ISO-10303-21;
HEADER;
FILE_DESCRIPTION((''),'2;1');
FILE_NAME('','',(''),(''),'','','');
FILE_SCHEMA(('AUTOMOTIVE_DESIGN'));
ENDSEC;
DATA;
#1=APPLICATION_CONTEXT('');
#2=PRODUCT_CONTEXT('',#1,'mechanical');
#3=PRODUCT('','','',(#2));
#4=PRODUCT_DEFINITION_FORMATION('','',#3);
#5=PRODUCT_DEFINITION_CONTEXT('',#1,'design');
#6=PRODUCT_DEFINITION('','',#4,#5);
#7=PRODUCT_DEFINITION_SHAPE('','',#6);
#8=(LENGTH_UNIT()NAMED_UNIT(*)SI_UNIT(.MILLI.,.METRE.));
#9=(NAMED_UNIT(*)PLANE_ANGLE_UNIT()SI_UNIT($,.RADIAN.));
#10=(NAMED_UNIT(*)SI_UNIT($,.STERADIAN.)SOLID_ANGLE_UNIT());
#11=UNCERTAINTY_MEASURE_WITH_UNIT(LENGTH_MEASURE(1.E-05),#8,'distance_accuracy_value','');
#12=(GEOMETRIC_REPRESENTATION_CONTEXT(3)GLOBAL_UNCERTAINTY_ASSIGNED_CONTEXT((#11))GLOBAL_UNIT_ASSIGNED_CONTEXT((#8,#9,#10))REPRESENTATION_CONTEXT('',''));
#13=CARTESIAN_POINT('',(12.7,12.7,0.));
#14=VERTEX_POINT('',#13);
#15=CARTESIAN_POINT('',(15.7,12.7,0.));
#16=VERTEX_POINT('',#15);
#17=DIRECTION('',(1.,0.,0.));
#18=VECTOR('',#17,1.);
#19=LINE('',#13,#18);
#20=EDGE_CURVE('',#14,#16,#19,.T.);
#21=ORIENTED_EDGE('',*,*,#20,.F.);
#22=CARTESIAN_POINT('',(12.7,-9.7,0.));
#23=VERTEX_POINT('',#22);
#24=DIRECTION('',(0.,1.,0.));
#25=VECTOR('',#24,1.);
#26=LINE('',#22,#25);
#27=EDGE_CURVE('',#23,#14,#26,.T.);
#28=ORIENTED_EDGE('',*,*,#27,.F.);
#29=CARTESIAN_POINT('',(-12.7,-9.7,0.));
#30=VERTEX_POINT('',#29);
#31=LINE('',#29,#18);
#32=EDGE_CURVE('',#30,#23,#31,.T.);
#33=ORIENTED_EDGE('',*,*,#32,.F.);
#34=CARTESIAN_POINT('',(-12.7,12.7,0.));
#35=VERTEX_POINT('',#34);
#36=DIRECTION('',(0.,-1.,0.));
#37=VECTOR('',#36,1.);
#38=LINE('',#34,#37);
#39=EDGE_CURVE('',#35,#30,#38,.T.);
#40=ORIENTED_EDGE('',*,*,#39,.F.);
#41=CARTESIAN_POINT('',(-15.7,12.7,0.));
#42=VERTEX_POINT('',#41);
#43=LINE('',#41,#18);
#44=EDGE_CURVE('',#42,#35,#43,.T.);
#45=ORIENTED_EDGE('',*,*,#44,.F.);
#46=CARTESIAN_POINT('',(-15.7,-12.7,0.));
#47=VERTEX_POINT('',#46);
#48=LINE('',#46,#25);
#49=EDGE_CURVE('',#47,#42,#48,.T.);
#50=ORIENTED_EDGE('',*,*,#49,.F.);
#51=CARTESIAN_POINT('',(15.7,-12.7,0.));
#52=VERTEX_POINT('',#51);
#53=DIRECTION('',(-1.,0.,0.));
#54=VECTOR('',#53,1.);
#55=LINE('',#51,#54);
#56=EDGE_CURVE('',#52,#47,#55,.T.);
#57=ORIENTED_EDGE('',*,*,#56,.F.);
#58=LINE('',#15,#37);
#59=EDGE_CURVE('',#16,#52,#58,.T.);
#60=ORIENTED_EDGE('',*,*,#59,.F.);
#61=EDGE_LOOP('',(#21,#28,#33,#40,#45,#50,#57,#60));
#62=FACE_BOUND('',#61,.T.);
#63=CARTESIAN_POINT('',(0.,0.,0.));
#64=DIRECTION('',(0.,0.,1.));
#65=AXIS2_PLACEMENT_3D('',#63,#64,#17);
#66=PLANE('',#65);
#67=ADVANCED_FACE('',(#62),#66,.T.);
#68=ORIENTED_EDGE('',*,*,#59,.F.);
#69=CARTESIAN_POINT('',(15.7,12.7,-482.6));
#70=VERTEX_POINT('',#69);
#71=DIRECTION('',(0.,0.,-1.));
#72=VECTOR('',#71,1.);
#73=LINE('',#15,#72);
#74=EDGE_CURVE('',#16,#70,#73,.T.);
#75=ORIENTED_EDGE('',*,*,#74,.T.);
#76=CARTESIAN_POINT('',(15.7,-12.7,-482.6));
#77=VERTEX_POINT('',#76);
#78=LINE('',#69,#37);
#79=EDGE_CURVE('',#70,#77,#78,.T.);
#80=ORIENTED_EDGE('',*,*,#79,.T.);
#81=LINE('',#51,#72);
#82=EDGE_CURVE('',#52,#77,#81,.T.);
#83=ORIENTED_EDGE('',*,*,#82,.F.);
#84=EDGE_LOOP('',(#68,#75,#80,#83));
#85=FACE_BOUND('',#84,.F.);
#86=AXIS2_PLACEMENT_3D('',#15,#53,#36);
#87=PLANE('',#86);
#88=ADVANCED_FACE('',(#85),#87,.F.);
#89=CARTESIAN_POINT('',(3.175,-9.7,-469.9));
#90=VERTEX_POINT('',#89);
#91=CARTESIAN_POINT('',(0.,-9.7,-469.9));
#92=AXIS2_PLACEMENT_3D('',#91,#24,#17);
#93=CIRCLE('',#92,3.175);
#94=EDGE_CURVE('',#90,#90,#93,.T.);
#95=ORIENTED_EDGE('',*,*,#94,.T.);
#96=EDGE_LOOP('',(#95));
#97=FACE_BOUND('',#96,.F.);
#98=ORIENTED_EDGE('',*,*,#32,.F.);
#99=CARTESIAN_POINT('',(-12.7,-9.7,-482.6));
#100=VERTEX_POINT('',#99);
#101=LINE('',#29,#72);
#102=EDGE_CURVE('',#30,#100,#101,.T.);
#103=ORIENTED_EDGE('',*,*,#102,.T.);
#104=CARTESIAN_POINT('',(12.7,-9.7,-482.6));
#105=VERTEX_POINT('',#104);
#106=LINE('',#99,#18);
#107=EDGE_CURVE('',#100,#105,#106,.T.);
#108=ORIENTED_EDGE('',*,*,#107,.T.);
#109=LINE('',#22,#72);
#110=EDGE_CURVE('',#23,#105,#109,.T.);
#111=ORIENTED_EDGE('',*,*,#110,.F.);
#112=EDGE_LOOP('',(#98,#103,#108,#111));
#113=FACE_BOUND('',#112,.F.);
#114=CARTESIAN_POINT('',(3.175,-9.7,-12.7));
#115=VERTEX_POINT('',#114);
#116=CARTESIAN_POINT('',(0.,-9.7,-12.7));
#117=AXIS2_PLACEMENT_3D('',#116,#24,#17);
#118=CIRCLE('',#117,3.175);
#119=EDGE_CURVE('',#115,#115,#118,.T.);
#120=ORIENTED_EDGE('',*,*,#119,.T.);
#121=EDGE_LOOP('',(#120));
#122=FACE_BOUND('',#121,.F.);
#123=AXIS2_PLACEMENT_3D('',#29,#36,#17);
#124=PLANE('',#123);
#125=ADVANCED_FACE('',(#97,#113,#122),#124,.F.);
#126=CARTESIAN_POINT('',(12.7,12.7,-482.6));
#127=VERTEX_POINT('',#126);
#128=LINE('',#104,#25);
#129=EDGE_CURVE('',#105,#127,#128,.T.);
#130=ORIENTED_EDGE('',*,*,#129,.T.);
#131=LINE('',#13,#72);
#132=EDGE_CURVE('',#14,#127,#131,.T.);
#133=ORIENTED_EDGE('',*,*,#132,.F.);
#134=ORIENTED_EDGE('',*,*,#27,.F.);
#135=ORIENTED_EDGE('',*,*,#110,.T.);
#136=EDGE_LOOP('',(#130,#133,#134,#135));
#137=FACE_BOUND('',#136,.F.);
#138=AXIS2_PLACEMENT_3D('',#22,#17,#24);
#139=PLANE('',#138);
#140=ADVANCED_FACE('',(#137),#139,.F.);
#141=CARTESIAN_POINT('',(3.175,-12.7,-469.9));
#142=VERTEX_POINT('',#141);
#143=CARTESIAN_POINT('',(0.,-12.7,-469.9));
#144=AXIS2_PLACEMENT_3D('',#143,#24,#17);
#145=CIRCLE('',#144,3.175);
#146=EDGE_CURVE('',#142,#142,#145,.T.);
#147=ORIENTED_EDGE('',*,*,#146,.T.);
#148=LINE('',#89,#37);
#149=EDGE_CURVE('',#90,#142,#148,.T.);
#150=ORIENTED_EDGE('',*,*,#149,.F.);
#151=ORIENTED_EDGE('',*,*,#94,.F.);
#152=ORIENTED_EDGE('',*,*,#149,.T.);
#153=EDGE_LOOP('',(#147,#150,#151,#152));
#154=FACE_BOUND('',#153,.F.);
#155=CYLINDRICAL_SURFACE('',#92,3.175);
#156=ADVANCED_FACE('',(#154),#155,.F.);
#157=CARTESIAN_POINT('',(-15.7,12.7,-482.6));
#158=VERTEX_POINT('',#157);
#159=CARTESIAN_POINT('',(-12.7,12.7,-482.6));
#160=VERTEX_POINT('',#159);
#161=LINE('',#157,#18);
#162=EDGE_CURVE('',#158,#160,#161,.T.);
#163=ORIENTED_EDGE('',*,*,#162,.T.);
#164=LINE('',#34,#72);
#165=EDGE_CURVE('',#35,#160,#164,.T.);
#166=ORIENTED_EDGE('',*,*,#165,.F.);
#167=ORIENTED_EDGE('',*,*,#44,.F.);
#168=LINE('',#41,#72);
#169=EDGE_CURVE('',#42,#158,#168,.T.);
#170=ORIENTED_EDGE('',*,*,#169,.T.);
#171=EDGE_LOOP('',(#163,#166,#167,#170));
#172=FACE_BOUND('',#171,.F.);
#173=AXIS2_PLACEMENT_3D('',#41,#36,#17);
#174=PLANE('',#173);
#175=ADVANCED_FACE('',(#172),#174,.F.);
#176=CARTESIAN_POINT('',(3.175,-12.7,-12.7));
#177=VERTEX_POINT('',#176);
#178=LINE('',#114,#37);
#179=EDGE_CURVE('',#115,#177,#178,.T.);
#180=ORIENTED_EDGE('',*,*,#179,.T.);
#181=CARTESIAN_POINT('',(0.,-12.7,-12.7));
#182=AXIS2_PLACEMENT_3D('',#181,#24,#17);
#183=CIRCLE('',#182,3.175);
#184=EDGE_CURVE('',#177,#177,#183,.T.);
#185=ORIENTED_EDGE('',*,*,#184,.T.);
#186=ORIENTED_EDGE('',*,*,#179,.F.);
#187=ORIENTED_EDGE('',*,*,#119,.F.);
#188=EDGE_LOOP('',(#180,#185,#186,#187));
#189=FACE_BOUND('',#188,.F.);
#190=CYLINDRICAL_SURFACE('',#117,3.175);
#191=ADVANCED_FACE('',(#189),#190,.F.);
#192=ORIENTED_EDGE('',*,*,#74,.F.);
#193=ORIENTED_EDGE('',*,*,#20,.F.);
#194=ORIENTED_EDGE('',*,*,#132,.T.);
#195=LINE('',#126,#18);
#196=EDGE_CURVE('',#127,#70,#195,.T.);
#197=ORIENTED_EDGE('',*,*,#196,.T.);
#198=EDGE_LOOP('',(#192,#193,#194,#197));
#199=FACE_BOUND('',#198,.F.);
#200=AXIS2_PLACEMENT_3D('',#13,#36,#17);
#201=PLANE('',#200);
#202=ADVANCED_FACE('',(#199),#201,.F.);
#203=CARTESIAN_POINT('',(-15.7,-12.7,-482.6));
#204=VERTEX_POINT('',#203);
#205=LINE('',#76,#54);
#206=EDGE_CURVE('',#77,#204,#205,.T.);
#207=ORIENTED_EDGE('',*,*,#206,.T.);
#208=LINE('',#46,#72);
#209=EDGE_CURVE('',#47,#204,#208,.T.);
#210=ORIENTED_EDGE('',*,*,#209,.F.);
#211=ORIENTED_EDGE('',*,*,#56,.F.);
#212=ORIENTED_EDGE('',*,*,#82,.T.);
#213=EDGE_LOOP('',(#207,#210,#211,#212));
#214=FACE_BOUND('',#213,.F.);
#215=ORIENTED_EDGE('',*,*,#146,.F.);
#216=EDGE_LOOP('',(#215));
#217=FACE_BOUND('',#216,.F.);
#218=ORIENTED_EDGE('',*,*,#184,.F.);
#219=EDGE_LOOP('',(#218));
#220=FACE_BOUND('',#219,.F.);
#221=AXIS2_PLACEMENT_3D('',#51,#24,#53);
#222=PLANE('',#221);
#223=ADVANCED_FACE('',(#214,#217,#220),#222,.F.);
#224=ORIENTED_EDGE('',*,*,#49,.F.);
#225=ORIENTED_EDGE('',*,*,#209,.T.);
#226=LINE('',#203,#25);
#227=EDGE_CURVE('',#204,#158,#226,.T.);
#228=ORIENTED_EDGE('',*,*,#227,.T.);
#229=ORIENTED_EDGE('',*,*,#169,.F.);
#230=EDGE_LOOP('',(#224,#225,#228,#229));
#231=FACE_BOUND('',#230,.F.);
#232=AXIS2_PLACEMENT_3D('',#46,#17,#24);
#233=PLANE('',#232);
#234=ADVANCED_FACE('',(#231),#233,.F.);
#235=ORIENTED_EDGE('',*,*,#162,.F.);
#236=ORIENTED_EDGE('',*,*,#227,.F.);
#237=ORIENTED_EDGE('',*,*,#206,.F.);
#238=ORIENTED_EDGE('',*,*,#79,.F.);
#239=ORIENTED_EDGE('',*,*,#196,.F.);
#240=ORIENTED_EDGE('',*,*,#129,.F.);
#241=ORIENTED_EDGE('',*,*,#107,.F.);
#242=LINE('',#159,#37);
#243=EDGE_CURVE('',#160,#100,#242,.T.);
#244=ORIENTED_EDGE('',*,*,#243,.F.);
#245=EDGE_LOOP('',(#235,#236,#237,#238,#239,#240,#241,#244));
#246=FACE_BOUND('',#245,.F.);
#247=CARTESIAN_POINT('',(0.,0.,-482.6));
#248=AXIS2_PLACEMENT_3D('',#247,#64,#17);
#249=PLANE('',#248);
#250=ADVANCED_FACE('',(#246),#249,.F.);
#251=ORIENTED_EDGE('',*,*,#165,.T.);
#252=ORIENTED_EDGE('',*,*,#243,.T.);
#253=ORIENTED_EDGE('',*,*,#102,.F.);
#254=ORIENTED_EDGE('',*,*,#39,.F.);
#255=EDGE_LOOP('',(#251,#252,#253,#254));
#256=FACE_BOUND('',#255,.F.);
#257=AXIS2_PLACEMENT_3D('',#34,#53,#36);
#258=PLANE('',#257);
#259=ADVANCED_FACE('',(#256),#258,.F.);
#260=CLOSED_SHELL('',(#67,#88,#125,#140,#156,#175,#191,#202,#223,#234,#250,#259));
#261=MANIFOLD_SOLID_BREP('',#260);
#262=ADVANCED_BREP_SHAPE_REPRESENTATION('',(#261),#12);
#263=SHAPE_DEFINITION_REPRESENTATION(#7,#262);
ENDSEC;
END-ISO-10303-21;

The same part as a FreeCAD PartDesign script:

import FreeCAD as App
import Part
import Sketcher
from FreeCAD import Vector
Q = App.Units.Quantity

doc = App.newDocument("Part")
body = doc.addObject("PartDesign::Body", "Body")

sketch1 = doc.addObject("Sketcher::SketchObject", "Sketch")
body.addObject(sketch1)
sketch1.AttachmentSupport = (doc.XY_Plane, [""])
sketch1.MapMode = "FlatFace"
sketch1.addGeometry([
    Part.LineSegment(Vector(-12.7, 12.7, 0), Vector(-15.7, 12.7, 0)),
    Part.LineSegment(Vector(-15.7, 12.7, 0), Vector(-15.7, -12.7, 0)),
    Part.LineSegment(Vector(-15.7, -12.7, 0), Vector(15.7, -12.7, 0)),
    Part.LineSegment(Vector(15.7, -12.7, 0), Vector(15.7, 12.7, 0)),
    Part.LineSegment(Vector(15.7, 12.7, 0), Vector(12.7, 12.7, 0)),
    Part.LineSegment(Vector(12.7, 12.7, 0), Vector(12.7, -9.7, 0)),
    Part.LineSegment(Vector(12.7, -9.7, 0), Vector(-12.7, -9.7, 0)),
    Part.LineSegment(Vector(-12.7, -9.7, 0), Vector(-12.7, 12.7, 0)),
], False)
sketch1.addConstraint([
    Sketcher.Constraint("Coincident", 0, 2, 1, 1),
    Sketcher.Constraint("Coincident", 1, 2, 2, 1),
    Sketcher.Constraint("Coincident", 2, 2, 3, 1),
    Sketcher.Constraint("Coincident", 3, 2, 4, 1),
    Sketcher.Constraint("Coincident", 4, 2, 5, 1),
    Sketcher.Constraint("Coincident", 5, 2, 6, 1),
    Sketcher.Constraint("Coincident", 6, 2, 7, 1),
    Sketcher.Constraint("Coincident", 7, 2, 0, 1),
    Sketcher.Constraint("Horizontal", 0),
    Sketcher.Constraint("Vertical", 1),
    Sketcher.Constraint("Horizontal", 2),
    Sketcher.Constraint("Vertical", 3),
    Sketcher.Constraint("Horizontal", 4),
    Sketcher.Constraint("Vertical", 5),
    Sketcher.Constraint("Horizontal", 6),
    Sketcher.Constraint("Vertical", 7),
    Sketcher.Constraint("Symmetric", 0, 2, 2, 2, -1, 1),
    Sketcher.Constraint("Symmetric", 4, 2, 7, 2, -2),
    Sketcher.Constraint("Equal", 6, 1),
    Sketcher.Constraint("DistanceX", 6, 2, 6, 1, Q("1 in")),
    Sketcher.Constraint("DistanceX", 0, 2, 0, 1, Q("0.1181 in")),
    Sketcher.Constraint("DistanceY", 2, 2, 5, 2, Q("0.1181 in")),
])
pad1 = doc.addObject("PartDesign::Pad", "Pad")
body.addObject(pad1)
pad1.Profile = sketch1
pad1.Length = Q("19 in")
pad1.Reversed = True

sketch2 = doc.addObject("Sketcher::SketchObject", "Sketch001")
body.addObject(sketch2)
sketch2.AttachmentSupport = (doc.XZ_Plane, [""])
sketch2.MapMode = "FlatFace"
sketch2.AttachmentOffset = App.Placement(Vector(0, 0, 0.3818898 * 25.4), App.Rotation())
sketch2.addGeometry([
    Part.Circle(Vector(0, -469.9, 0), Vector(0, 0, 1), 3.2),
    Part.Circle(Vector(0, -12.7, 0), Vector(0, 0, 1), 3.2),
], False)
sketch2.addConstraint([
    Sketcher.Constraint("Equal", 0, 1),
    Sketcher.Constraint("PointOnObject", 0, 3, -2),
    Sketcher.Constraint("PointOnObject", 1, 3, -2),
    Sketcher.Constraint("Diameter", 0, Q("0.25 in")),
    Sketcher.Constraint("DistanceY", 0, 3, 1, 3, Q("18 in")),
    Sketcher.Constraint("DistanceY", 0, 3, -1, 1, Q("18.5 in")),
])
pocket1 = doc.addObject("PartDesign::Pocket", "Pocket")
body.addObject(pocket1)
pocket1.Profile = sketch2
pocket1.Length = Q("0.3937008 in")
pocket1.Reversed = True

doc.recompute()
